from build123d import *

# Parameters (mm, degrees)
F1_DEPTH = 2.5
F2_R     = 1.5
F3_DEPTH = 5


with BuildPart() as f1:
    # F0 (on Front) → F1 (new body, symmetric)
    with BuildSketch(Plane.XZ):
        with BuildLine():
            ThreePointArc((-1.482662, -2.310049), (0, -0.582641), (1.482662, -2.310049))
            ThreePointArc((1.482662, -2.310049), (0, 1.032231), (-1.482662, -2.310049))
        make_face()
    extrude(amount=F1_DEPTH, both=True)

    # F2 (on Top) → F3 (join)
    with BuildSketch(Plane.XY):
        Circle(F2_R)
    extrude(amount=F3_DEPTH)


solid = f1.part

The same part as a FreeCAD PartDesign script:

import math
import FreeCAD as App
import Part
import Sketcher

V = App.Vector
Q = App.Units.Quantity

doc = App.newDocument("Part")
params = doc.addObject("Spreadsheet::Sheet", "Params")
for row, (alias, value) in enumerate([
    ("sketch1_radius", "2 mm"),
    ("sketch1_radius2", "1.5 mm"),
    ("pad1_length", "5 mm"),
    ("sketch2_diameter", "3 mm"),
    ("pad2_length", "5 mm"),
], start=1):
    params.set(f"A{row}", alias)
    params.set(f"B{row}", "=" + value)
    params.setAlias(f"B{row}", alias)

body = doc.addObject("PartDesign::Body", "Body")

sketch1 = doc.addObject("Sketcher::SketchObject", "Sketch")
body.addObject(sketch1)
sketch1.AttachmentSupport = (doc.XZ_Plane, [""])
sketch1.MapMode = "FlatFace"
sketch1.addGeometry([
    Part.ArcOfCircle(Part.Circle(V(0, -2.082641, 0), V(0, 0, 1), 1.5), math.radians(-8.719956), math.radians(188.719956)),
    Part.ArcOfCircle(Part.Circle(V(0, -0.967769, 0), V(0, 0, 1), 2), math.radians(-42.15509), math.radians(222.15509)),
], False)
sketch1.addConstraint([
    Sketcher.Constraint("Coincident", 0, 1, 1, 1),
    Sketcher.Constraint("Coincident", 1, 2, 0, 2),
    Sketcher.Constraint("Symmetric", 0, 1, 1, 2, -2),
    Sketcher.Constraint("Radius", 1, Q("2 mm")),
    Sketcher.Constraint("Radius", 0, Q("1.5 mm")),
    Sketcher.Constraint("DistanceY", 0, 3, -1, 1, Q("2.082641 mm")),
    Sketcher.Constraint("DistanceY", 1, 3, -1, 1, Q("0.967769 mm")),
])
sketch1.setExpression("Constraints[3]", "Params.sketch1_radius")
sketch1.setExpression("Constraints[4]", "Params.sketch1_radius2")
pad1 = doc.addObject("PartDesign::Pad", "Pad")
body.addObject(pad1)
pad1.Profile = sketch1
pad1.setExpression("Length", "Params.pad1_length")
pad1.Midplane = True

sketch2 = doc.addObject("Sketcher::SketchObject", "Sketch001")
body.addObject(sketch2)
sketch2.AttachmentSupport = (doc.XY_Plane, [""])
sketch2.MapMode = "FlatFace"
sketch2.addGeometry(Part.Circle(V(0, 0, 0), V(0, 0, 1), 1.5), False)
sketch2.addConstraint([
    Sketcher.Constraint("Coincident", 0, 3, -1, 1),
    Sketcher.Constraint("Diameter", 0, Q("3 mm")),
])
sketch2.setExpression("Constraints[1]", "Params.sketch2_diameter")
pad2 = doc.addObject("PartDesign::Pad", "Pad001")
body.addObject(pad2)
pad2.Profile = sketch2
pad2.setExpression("Length", "Params.pad2_length")

doc.recompute()
